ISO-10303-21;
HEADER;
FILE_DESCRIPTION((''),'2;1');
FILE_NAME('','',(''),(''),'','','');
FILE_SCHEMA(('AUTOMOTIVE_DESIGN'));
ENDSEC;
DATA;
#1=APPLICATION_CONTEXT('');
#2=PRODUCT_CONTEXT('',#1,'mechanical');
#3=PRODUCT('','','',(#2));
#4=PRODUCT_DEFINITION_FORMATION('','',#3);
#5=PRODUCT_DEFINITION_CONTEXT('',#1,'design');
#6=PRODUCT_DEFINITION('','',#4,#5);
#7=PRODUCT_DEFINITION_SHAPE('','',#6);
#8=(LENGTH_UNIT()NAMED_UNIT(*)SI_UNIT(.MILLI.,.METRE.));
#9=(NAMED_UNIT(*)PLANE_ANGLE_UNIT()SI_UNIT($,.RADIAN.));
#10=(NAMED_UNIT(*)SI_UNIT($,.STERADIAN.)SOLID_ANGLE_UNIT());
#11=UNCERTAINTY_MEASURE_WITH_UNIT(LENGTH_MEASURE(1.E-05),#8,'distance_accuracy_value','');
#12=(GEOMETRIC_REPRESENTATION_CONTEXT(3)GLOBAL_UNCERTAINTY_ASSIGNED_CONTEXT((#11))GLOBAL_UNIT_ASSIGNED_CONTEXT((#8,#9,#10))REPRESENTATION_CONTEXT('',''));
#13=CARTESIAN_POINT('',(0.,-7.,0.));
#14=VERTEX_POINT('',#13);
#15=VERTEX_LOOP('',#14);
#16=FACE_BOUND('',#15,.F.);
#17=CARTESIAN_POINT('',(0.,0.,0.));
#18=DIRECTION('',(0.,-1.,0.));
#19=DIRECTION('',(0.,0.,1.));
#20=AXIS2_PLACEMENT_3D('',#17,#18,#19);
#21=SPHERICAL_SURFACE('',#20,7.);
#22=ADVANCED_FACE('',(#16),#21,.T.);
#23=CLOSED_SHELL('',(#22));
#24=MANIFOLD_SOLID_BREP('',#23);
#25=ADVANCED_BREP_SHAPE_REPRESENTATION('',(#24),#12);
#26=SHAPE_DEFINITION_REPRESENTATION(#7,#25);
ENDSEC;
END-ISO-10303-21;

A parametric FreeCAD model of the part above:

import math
import FreeCAD as App
import Part
import Sketcher
Q = App.Units.Quantity

doc = App.newDocument("Part")
body = doc.addObject("PartDesign::Body", "Body")

# Sketch on YZ plane
sketch1 = body.newObject("Sketcher::SketchObject", "Sketch")
sketch1.AttachmentSupport = (doc.getObject("YZ_Plane"), [""])
sketch1.MapMode = "FlatFace"
sketch1.addGeometry([
    Part.LineSegment(App.Vector(-7, 0, 0), App.Vector(7, 0, 0)),
    Part.ArcOfCircle(Part.Circle(App.Vector(0, 0, 0), App.Vector(0, 0, 1), 7), math.radians(0), math.radians(180)),
], False)
sketch1.addConstraint([
    Sketcher.Constraint("Coincident", 0, 1, 1, 2),
    Sketcher.Constraint("Coincident", 1, 1, 0, 2),
    Sketcher.Constraint("Horizontal", 0),
    Sketcher.Constraint("Coincident", 1, 3, -1, 1),
    Sketcher.Constraint("PointOnObject", 0, 1, -1),
    Sketcher.Constraint("Radius", 1, Q("7 mm")),
])
revolution = body.newObject("PartDesign::Revolution", "Revolution")
revolution.Profile = sketch1
revolution.ReferenceAxis = (sketch1, ["H_Axis"])
revolution.Angle = 360

doc.recompute()
